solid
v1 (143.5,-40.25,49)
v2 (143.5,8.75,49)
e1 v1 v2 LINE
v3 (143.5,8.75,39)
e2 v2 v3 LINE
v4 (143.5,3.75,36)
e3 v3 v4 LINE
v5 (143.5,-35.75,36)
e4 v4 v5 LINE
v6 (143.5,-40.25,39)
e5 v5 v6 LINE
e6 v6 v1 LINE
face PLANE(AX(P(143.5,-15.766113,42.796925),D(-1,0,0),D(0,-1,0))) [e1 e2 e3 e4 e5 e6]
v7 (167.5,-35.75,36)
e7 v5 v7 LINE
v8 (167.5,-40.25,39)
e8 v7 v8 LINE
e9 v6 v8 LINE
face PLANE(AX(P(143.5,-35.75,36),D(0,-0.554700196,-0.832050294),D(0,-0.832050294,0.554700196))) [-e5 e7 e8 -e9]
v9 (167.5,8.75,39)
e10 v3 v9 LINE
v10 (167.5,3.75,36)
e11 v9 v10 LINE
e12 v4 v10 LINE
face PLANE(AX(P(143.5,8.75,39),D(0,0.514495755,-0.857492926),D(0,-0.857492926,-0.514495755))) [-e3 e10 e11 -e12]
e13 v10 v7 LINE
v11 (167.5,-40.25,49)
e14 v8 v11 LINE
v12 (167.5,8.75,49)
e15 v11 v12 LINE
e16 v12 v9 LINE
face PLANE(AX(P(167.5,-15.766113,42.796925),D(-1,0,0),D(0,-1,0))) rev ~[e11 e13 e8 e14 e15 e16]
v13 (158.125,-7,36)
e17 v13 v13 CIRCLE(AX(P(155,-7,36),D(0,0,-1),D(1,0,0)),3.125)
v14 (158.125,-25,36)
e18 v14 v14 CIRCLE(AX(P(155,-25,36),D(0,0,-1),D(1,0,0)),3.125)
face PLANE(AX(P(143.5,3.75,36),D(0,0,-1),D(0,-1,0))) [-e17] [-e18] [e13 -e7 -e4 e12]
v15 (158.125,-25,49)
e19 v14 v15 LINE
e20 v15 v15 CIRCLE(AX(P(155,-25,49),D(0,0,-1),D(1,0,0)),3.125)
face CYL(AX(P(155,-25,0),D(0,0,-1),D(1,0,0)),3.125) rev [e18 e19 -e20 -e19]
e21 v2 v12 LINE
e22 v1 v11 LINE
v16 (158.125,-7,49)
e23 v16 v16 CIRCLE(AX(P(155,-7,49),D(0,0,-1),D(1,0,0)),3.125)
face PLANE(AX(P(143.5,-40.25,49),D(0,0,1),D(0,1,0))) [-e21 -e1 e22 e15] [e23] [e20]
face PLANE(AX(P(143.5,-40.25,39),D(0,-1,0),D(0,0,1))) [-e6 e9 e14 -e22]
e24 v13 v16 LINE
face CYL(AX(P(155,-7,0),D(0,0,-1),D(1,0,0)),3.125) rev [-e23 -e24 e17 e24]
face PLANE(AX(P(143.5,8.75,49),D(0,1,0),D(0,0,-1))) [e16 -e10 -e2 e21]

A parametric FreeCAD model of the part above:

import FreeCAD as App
import Part
import Sketcher
from FreeCAD import Vector
Q = App.Units.Quantity


def add_polygon(sketch, points):
    """Adds a closed chain of lines whose ends are joined by coincident constraints."""
    first, n = sketch.GeometryCount, len(points)
    for a, b in zip(points, points[1:] + points[:1]):
        sketch.addGeometry(Part.LineSegment(App.Vector(*a, 0), App.Vector(*b, 0)), False)
    for i in range(n):
        sketch.addConstraint(Sketcher.Constraint("Coincident", first + i, 2, first + (i + 1) % n, 1))

doc = App.newDocument("Part")
params = doc.addObject("Spreadsheet::Sheet", "Params")
for row, (alias, value) in enumerate([
    ("sketch1_width", "49 mm"),
    ("sketch1_height", "10 mm"),
    ("sketch1_width2", "39.5 mm"),
    ("pad1_length", "24 mm"),
    ("sketch2_diameter", "6.25 mm"),
], start=1):
    params.set(f"A{row}", alias)
    params.set(f"B{row}", "=" + value)
    params.setAlias(f"B{row}", alias)

body = doc.addObject("PartDesign::Body", "Body")

sketch1 = body.newObject("Sketcher::SketchObject", "Sketch")
sketch1.AttachmentSupport = (doc.getObject("YZ_Plane"), [""])
sketch1.MapMode = "FlatFace"
sketch1.AttachmentOffset = App.Placement(Vector(0, 0, 143.5), App.Rotation())
add_polygon(sketch1, [(8.75, 49), (-40.25, 49), (-40.25, 39), (-35.75, 36), (3.75, 36), (8.75, 39)])
sketch1.addConstraint(Sketcher.Constraint("Horizontal", 0))
sketch1.addConstraint(Sketcher.Constraint("Vertical", 1))
sketch1.addConstraint(Sketcher.Constraint("Horizontal", 3))
sketch1.addConstraint(Sketcher.Constraint("Vertical", 5))
sketch1.addConstraint(Sketcher.Constraint("Horizontal", 1, 2, 4, 2))
sketch1.addConstraint(Sketcher.Constraint("DistanceX", 0, 2, 0, 1, Q("49 mm")))
sketch1.addConstraint(Sketcher.Constraint("DistanceY", 1, 2, 1, 1, Q("10 mm")))
sketch1.addConstraint(Sketcher.Constraint("DistanceX", 3, 1, 3, 2, Q("39.5 mm")))
sketch1.addConstraint(Sketcher.Constraint("DistanceY", -1, 1, 0, 2, Q("49 mm")))
sketch1.addConstraint(Sketcher.Constraint("DistanceY", -1, 1, 2, 2, Q("36 mm")))
sketch1.addConstraint(Sketcher.Constraint("DistanceX", 1, 2, 3, 2, Q("44 mm")))
sketch1.addConstraint(Sketcher.Constraint("DistanceX", 0, 2, -1, 1, Q("40.25 mm")))
sketch1.setExpression("Constraints[11]", "Params.sketch1_width")
sketch1.setExpression("Constraints[12]", "Params.sketch1_height")
sketch1.setExpression("Constraints[13]", "Params.sketch1_width2")
pad1 = body.newObject("PartDesign::Pad", "Pad")
pad1.Profile = sketch1
pad1.setExpression("Length", "Params.pad1_length")

sketch2 = body.newObject("Sketcher::SketchObject", "Sketch001")
sketch2.AttachmentSupport = (doc.getObject("XY_Plane"), [""])
sketch2.MapMode = "FlatFace"
sketch2.addGeometry(Part.Circle(Vector(155, -7, 0), Vector(0, 0, 1), 3.125), False)
sketch2.addGeometry(Part.Circle(Vector(155, -25, 0), Vector(0, 0, 1), 3.125), False)
sketch2.addConstraint(Sketcher.Constraint("Equal", 0, 1))
sketch2.addConstraint(Sketcher.Constraint("Vertical", 0, 3, 1, 3))
sketch2.addConstraint(Sketcher.Constraint("Diameter", 0, Q("6.25 mm")))
sketch2.addConstraint(Sketcher.Constraint("DistanceX", -1, 1, 0, 3, Q("155 mm")))
sketch2.addConstraint(Sketcher.Constraint("DistanceY", 0, 3, -1, 1, Q("7 mm")))
sketch2.addConstraint(Sketcher.Constraint("DistanceY", 1, 3, -1, 1, Q("25 mm")))
sketch2.setExpression("Constraints[2]", "Params.sketch2_diameter")
pocket1 = body.newObject("PartDesign::Pocket", "Pocket")
pocket1.Profile = sketch2
pocket1.Type = "ThroughAll"
pocket1.Reversed = True

doc.recompute()
